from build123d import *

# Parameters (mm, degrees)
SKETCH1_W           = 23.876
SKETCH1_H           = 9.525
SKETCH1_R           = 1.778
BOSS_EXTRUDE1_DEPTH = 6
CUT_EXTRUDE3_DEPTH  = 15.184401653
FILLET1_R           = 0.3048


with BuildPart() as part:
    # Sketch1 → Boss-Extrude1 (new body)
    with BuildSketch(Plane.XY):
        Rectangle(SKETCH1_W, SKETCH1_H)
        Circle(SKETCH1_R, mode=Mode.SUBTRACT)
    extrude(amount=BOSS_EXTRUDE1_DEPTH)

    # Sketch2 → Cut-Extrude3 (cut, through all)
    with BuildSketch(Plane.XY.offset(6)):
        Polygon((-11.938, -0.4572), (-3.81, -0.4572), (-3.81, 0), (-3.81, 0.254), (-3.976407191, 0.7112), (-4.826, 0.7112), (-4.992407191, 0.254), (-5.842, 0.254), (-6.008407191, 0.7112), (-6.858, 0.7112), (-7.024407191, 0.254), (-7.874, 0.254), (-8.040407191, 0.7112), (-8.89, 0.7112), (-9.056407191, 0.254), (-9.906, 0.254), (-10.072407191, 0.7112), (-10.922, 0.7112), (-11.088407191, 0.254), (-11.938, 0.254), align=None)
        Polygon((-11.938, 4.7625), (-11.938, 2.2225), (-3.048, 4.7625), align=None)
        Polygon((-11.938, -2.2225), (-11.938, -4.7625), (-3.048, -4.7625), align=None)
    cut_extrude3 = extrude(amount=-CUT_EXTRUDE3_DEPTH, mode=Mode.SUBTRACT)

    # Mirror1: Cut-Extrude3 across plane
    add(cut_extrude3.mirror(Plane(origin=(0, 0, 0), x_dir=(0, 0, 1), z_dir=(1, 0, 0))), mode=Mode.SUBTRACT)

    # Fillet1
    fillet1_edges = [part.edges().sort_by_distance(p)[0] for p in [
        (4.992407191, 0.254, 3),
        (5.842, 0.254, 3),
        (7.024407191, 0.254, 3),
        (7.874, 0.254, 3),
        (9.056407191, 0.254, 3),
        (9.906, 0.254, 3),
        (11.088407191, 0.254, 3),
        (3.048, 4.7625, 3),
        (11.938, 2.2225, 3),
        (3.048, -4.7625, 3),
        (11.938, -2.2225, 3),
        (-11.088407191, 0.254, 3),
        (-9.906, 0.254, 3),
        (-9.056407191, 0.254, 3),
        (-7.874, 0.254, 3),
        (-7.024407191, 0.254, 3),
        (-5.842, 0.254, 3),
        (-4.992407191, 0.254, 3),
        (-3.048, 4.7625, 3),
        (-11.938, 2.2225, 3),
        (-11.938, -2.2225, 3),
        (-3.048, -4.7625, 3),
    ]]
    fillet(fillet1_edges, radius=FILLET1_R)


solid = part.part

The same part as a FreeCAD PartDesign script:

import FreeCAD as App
import Part
import Sketcher
from FreeCAD import Vector
Q = App.Units.Quantity


def edges_at(feature, points):
    """Names of the edges that pass closest to the given points."""
    edges = feature.Shape.Edges
    near = lambda p: min(range(len(edges)), key=lambda i: edges[i].distToShape(Part.Vertex(*p))[0])
    return sorted({f"Edge{near(p) + 1}" for p in points})


def add_polygon(sketch, points):
    """Adds a closed chain of lines whose ends are joined by coincident constraints."""
    first, n = sketch.GeometryCount, len(points)
    for a, b in zip(points, points[1:] + points[:1]):
        sketch.addGeometry(Part.LineSegment(App.Vector(*a, 0), App.Vector(*b, 0)), False)
    for i in range(n):
        sketch.addConstraint(Sketcher.Constraint("Coincident", first + i, 2, first + (i + 1) % n, 1))

doc = App.newDocument("Part")
params = doc.addObject("Spreadsheet::Sheet", "Params")
for row, (alias, value) in enumerate([
    ("sketch1_diameter", "0.14 in"),
    ("sketch1_width", "0.94 in"),
    ("sketch1_height", "0.375 in"),
    ("pad1_length", "6 mm"),
    ("sketch2_height", "0.1 in"),
    ("sketch2_width", "0.32 in"),
    ("sketch2_width2", "0.35 in"),
    ("sketch2_height2", "0.028 in"),
    ("fillet_radius", "0.012 in"),
], start=1):
    params.set(f"A{row}", alias)
    params.set(f"B{row}", "=" + value)
    params.setAlias(f"B{row}", alias)

body = doc.addObject("PartDesign::Body", "Body")

# Sketch on XY plane
sketch1 = body.newObject("Sketcher::SketchObject", "Sketch")
sketch1.AttachmentSupport = (doc.getObject("XY_Plane"), [""])
sketch1.MapMode = "FlatFace"
add_polygon(sketch1, [(-11.9, 4.8), (-11.9, -4.8), (11.9, -4.8), (11.9, 4.8)])  # lines 0-3
sketch1.addGeometry(Part.Circle(Vector(0, 0, 0), Vector(0, 0, 1), 1.8), False)  # 4
sketch1.addConstraint([
    Sketcher.Constraint("Vertical", 0),
    Sketcher.Constraint("Horizontal", 1),
    Sketcher.Constraint("Vertical", 2),
    Sketcher.Constraint("Horizontal", 3),
    Sketcher.Constraint("Coincident", 4, 3, -1, 1),
    Sketcher.Constraint("Symmetric", 0, 2, 2, 2, -1, 1),
    Sketcher.Constraint("Diameter", 4, Q("0.14 in")),
    Sketcher.Constraint("DistanceX", 1, 1, 1, 2, Q("0.94 in")),
    Sketcher.Constraint("DistanceY", 0, 2, 0, 1, Q("0.375 in")),
])
sketch1.setExpression("Constraints[10]", "Params.sketch1_diameter")
sketch1.setExpression("Constraints[11]", "Params.sketch1_width")
sketch1.setExpression("Constraints[12]", "Params.sketch1_height")
pad1 = body.newObject("PartDesign::Pad", "Pad")
pad1.Profile = sketch1
pad1.setExpression("Length", "Params.pad1_length")

# Sketch on XY plane
sketch2 = body.newObject("Sketcher::SketchObject", "Sketch001")
sketch2.AttachmentSupport = (doc.getObject("XY_Plane"), [""])
sketch2.MapMode = "FlatFace"
sketch2.AttachmentOffset = App.Placement(Vector(0, 0, 6), App.Rotation())
add_polygon(sketch2, [(-11.94, -0.46), (-3.81, -0.46), (-3.81, 0.25), (-3.98, 0.71), (-4.83, 0.71), (-4.99, 0.25), (-5.84, 0.25), (-6.01, 0.71), (-6.86, 0.71), (-7.02, 0.25), (-7.87, 0.25), (-8.04, 0.71), (-8.89, 0.71), (-9.06, 0.25), (-9.91, 0.25), (-10.07, 0.71), (-10.92, 0.71), (-11.09, 0.25), (-11.94, 0.25)])  # lines 0-18
add_polygon(sketch2, [(-11.94, 4.76), (-11.94, 2.22), (-3.05, 4.76)])  # lines 19-21
add_polygon(sketch2, [(-11.94, -2.22), (-11.94, -4.76), (-3.05, -4.76)])  # lines 22-24
sketch2.addConstraint([
    Sketcher.Constraint("Horizontal", 0),
    Sketcher.Constraint("Vertical", 1),
    Sketcher.Constraint("Horizontal", 3),
    Sketcher.Constraint("Horizontal", 5),
    Sketcher.Constraint("Horizontal", 7),
    Sketcher.Constraint("Horizontal", 9),
    Sketcher.Constraint("Horizontal", 11),
    Sketcher.Constraint("Horizontal", 13),
    Sketcher.Constraint("Horizontal", 15),
    Sketcher.Constraint("Horizontal", 17),
    Sketcher.Constraint("Vertical", 18),
    Sketcher.Constraint("Vertical", 19),
    Sketcher.Constraint("Horizontal", 21),
    Sketcher.Constraint("Vertical", 22),
    Sketcher.Constraint("Horizontal", 23),
    Sketcher.Constraint("Symmetric", 21, 2, 22, 2, -1),
    Sketcher.Constraint("Parallel", 2, 6),
    Sketcher.Constraint("Parallel", 4, 8),
    Sketcher.Constraint("Parallel", 6, 10),
    Sketcher.Constraint("Parallel", 8, 12),
    Sketcher.Constraint("Parallel", 10, 14),
    Sketcher.Constraint("Parallel", 12, 16),
    Sketcher.Constraint("Horizontal", 1, 2, 4, 2),
    Sketcher.Constraint("Horizontal", 3, 2, 6, 2),
    Sketcher.Constraint("Horizontal", 5, 2, 8, 2),
    Sketcher.Constraint("Horizontal", 7, 2, 10, 2),
    Sketcher.Constraint("Horizontal", 9, 2, 12, 2),
    Sketcher.Constraint("Horizontal", 11, 2, 14, 2),
    Sketcher.Constraint("Horizontal", 13, 2, 16, 2),
    Sketcher.Constraint("Vertical", 18, 2, 19, 2),
    Sketcher.Constraint("Vertical", 20, 2, 23, 2),
    Sketcher.Constraint("Equal", 3, 5),
    Sketcher.Constraint("Equal", 5, 7),
    Sketcher.Constraint("Equal", 7, 9),
    Sketcher.Constraint("Equal", 9, 11),
    Sketcher.Constraint("Equal", 11, 13),
    Sketcher.Constraint("Equal", 13, 15),
    Sketcher.Constraint("Equal", 15, 17),
    Sketcher.Constraint("Equal", 19, 22),
    Sketcher.Constraint("Equal", 2, 4),
    Sketcher.Constraint("DistanceY", 19, 2, 19, 1, Q("0.1 in")),
    Sketcher.Constraint("Angle", 2, Q("110 deg")),
    Sketcher.Constraint("DistanceX", 0, 1, 0, 2, Q("0.32 in")),
    Sketcher.Constraint("DistanceX", 21, 2, 21, 1, Q("0.35 in")),
    Sketcher.Constraint("DistanceY", 1, 1, 1, 2, Q("0.028 in")),
    Sketcher.Constraint("DistanceX", 0, 2, -1, 1, Q("0.15 in")),
    Sketcher.Constraint("DistanceY", -1, 1, 1, 2, Q("0.01 in")),
    Sketcher.Constraint("DistanceY", -1, 1, 2, 2, Q("0.028 in")),
    Sketcher.Constraint("DistanceY", -1, 1, 20, 2, Q("0.1875 in")),
])
sketch2.setExpression("Constraints[65]", "Params.sketch2_height")
sketch2.setExpression("Constraints[67]", "Params.sketch2_width")
sketch2.setExpression("Constraints[68]", "Params.sketch2_width2")
sketch2.setExpression("Constraints[69]", "Params.sketch2_height2")
pocket1 = body.newObject("PartDesign::Pocket", "Pocket")
pocket1.Profile = sketch2
pocket1.Type = "ThroughAll"
doc.recompute()

mirrored = body.newObject("PartDesign::Mirrored", "Mirrored")
mirrored.Originals = [pocket1]
mirrored.MirrorPlane = (doc.getObject("YZ_Plane"), [""])
body.Tip = mirrored
doc.recompute()

fillet = body.newObject("PartDesign::Fillet", "Fillet")
fillet.Base = (mirrored, edges_at(mirrored, [
    (4.992, 0.254, 3),
    (5.842, 0.254, 3),
    (7.024, 0.254, 3),
    (7.874, 0.254, 3),
    (9.056, 0.254, 3),
    (9.906, 0.254, 3),
    (11.088, 0.254, 3),
    (3.048, 4.763, 3),
    (11.938, 2.223, 3),
    (3.048, -4.763, 3),
    (11.938, -2.223, 3),
    (-11.088, 0.254, 3),
    (-9.906, 0.254, 3),
    (-9.056, 0.254, 3),
    (-7.874, 0.254, 3),
    (-7.024, 0.254, 3),
    (-5.842, 0.254, 3),
    (-4.992, 0.254, 3),
    (-3.048, 4.763, 3),
    (-11.938, 2.223, 3),
    (-11.938, -2.223, 3),
    (-3.048, -4.763, 3),
]))
fillet.setExpression("Radius", "Params.fillet_radius")

doc.recompute()
